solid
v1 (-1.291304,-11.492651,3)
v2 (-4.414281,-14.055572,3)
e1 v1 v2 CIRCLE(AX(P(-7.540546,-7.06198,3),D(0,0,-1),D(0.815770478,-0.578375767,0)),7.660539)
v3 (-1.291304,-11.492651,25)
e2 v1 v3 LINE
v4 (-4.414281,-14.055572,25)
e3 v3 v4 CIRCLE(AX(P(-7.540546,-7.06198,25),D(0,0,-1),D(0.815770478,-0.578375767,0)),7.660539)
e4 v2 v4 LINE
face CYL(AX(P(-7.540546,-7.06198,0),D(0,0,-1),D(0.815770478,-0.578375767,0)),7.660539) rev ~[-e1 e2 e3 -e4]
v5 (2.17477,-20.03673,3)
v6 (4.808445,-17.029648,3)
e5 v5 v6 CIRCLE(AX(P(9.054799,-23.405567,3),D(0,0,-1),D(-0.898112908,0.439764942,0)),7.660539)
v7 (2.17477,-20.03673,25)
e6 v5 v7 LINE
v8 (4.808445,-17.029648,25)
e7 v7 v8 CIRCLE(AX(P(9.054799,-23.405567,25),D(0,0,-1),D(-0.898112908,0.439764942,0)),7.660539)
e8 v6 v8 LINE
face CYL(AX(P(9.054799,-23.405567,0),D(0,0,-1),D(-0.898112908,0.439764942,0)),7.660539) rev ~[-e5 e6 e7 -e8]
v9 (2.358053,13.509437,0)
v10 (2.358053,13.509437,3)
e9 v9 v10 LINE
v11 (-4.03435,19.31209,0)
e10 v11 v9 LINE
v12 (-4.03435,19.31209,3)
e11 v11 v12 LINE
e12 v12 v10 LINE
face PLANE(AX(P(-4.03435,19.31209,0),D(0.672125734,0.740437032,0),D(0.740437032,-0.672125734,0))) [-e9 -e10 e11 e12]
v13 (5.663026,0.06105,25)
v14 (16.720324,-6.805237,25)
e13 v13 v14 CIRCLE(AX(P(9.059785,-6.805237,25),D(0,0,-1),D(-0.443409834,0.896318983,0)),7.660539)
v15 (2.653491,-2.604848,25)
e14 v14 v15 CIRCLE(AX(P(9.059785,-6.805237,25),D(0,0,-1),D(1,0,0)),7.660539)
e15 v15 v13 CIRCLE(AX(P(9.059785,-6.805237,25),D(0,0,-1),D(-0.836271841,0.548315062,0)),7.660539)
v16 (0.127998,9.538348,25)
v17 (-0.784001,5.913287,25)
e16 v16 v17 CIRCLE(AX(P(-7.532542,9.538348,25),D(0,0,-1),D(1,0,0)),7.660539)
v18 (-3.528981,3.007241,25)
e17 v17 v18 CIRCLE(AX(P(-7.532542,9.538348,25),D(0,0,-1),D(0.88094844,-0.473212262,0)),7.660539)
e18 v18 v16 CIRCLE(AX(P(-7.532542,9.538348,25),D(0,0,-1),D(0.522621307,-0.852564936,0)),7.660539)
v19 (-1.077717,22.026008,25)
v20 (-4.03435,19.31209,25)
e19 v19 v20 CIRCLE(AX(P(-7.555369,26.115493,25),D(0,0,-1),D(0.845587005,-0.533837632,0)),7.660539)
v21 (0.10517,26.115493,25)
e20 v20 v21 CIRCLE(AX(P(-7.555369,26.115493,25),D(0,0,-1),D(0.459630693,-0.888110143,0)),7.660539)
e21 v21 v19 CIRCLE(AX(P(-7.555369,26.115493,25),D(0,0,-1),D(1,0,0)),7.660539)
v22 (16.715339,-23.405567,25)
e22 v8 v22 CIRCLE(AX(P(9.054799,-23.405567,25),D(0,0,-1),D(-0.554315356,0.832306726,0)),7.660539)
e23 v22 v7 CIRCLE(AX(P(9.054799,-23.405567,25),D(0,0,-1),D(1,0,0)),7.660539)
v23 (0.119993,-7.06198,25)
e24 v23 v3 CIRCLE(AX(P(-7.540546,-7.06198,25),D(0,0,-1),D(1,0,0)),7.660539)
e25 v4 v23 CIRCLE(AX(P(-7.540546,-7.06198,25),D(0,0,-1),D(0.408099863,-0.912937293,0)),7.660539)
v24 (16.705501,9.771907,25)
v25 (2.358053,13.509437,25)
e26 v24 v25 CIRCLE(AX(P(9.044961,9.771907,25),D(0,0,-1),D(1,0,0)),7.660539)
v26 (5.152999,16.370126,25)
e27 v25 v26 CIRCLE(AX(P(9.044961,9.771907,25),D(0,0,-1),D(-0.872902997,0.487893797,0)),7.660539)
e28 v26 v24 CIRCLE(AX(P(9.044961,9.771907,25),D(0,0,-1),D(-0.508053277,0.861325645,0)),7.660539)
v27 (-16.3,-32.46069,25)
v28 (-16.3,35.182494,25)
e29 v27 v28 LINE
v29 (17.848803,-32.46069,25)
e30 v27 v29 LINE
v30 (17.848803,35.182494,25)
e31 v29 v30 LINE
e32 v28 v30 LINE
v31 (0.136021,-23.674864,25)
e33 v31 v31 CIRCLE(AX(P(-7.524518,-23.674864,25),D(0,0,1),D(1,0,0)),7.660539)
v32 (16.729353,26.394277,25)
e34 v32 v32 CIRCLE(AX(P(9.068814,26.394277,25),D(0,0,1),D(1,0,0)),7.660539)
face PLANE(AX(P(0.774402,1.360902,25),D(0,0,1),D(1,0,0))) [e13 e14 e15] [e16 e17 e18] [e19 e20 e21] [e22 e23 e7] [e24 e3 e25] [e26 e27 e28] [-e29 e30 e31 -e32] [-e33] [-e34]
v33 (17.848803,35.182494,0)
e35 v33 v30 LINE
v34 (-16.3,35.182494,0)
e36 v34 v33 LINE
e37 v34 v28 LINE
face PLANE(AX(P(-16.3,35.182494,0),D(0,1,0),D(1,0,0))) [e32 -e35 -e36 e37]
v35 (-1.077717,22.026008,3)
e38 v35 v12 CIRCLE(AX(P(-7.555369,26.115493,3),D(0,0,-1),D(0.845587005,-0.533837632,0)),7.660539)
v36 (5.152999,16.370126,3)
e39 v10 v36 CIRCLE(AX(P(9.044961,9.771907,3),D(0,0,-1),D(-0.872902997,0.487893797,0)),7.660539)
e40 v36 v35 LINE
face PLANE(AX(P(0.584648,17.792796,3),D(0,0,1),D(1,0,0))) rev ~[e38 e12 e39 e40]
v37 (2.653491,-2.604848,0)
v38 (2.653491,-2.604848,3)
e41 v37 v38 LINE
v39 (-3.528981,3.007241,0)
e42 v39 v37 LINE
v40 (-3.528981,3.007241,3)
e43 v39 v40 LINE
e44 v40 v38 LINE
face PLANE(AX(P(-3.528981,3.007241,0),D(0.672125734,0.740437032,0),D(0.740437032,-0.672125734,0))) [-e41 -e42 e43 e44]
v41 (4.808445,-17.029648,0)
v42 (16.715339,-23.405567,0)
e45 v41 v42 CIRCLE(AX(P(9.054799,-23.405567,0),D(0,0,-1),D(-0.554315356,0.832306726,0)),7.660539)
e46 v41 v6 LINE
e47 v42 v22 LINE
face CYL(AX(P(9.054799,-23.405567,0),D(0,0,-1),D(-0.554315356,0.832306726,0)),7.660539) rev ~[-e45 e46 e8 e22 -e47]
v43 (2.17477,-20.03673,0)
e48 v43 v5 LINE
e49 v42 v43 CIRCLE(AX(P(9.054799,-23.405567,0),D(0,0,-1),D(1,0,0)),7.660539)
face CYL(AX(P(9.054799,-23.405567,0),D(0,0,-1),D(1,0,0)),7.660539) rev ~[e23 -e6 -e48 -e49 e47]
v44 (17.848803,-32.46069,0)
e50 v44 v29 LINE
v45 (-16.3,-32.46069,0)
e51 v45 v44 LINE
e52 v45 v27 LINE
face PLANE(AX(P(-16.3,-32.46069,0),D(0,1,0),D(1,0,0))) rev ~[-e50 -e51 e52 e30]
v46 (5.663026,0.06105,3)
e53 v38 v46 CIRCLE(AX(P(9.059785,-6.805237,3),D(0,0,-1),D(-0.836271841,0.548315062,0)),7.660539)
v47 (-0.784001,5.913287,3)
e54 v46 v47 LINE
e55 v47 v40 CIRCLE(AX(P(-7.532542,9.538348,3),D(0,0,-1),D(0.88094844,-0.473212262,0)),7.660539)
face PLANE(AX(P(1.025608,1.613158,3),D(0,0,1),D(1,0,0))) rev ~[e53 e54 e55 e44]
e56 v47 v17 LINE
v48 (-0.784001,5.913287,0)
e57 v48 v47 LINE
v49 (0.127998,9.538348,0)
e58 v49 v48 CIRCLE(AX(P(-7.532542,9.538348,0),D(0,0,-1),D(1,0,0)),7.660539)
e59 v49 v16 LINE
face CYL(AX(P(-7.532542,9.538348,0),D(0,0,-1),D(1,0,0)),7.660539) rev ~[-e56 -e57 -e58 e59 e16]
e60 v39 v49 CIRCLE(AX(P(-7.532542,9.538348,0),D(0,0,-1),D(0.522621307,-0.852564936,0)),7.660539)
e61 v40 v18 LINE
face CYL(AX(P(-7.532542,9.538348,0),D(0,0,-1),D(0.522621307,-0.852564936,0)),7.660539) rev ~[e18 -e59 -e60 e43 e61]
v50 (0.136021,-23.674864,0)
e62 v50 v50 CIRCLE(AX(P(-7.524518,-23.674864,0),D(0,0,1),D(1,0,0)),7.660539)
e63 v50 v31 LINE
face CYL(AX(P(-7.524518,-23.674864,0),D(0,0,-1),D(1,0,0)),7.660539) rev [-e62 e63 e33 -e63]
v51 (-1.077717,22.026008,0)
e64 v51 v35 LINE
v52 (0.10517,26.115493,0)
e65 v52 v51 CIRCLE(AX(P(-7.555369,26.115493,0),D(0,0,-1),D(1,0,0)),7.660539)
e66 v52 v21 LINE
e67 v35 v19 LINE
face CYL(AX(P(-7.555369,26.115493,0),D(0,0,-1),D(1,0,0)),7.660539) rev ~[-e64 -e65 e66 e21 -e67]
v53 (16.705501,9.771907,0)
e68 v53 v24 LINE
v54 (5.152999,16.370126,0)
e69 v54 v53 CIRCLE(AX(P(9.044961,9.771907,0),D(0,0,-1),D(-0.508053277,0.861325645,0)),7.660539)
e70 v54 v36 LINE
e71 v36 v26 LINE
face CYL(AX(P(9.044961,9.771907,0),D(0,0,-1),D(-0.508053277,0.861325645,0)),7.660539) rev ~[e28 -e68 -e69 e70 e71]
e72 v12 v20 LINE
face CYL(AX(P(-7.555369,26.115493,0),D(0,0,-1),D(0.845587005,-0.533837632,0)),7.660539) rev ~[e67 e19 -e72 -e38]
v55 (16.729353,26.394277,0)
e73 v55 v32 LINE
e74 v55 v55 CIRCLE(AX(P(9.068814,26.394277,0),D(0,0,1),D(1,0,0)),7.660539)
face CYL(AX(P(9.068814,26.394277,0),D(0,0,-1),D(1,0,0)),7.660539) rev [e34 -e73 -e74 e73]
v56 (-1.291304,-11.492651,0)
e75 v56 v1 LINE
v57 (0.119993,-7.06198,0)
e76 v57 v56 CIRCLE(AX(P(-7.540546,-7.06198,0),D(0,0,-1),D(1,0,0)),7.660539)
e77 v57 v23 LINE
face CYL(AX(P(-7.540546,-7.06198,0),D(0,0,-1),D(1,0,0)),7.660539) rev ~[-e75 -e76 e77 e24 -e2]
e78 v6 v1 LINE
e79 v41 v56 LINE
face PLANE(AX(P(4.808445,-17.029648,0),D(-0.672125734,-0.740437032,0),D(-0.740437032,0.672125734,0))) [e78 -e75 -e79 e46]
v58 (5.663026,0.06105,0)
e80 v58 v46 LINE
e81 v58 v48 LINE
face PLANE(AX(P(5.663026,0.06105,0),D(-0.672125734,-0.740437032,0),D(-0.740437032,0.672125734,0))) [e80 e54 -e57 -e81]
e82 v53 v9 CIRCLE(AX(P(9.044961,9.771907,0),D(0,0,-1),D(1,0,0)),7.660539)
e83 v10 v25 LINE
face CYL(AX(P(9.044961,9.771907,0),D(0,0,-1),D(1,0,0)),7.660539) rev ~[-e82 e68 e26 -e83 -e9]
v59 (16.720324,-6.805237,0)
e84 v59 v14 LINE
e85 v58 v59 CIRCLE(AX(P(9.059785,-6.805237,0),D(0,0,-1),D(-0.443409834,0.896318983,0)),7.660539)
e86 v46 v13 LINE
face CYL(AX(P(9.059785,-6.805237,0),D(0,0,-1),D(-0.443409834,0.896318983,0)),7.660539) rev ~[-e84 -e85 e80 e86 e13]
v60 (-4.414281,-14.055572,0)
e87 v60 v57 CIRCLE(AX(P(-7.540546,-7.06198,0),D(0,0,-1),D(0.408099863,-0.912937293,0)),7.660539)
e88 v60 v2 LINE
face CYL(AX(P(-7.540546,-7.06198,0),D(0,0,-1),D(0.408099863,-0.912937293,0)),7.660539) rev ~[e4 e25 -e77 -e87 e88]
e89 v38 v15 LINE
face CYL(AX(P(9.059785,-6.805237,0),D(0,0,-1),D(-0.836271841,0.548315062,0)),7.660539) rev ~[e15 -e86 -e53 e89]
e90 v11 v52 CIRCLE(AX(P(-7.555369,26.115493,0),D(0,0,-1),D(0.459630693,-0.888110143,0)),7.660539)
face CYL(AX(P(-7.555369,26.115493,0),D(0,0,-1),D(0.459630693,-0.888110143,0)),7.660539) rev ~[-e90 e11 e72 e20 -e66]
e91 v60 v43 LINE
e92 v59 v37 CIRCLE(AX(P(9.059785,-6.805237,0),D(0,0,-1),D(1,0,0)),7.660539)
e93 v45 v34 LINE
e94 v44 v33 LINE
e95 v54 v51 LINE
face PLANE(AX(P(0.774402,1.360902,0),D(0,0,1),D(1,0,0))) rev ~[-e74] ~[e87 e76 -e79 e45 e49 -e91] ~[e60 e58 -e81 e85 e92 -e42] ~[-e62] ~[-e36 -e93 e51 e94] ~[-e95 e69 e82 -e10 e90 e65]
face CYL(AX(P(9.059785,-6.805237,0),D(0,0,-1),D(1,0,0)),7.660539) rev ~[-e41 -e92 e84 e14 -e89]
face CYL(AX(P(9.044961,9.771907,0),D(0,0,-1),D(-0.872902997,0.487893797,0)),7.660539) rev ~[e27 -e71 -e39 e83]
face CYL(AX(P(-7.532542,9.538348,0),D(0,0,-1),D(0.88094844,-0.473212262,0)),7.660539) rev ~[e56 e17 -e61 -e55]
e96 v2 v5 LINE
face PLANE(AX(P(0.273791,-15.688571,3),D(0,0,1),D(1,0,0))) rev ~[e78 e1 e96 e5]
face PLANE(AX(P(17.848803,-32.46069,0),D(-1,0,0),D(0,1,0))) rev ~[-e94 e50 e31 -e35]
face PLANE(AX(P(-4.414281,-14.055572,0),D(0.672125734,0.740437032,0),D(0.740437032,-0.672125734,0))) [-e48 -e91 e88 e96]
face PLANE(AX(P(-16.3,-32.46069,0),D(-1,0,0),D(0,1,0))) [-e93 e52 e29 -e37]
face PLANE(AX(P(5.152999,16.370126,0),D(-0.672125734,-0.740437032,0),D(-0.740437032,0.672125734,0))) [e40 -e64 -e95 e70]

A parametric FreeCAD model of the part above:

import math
import FreeCAD as App
import Part
import Sketcher

V = App.Vector


def add_polygon(sketch, points):
    """Adds a closed chain of lines whose ends are joined by coincident constraints."""
    first, n = sketch.GeometryCount, len(points)
    for a, b in zip(points, points[1:] + points[:1]):
        sketch.addGeometry(Part.LineSegment(App.Vector(*a, 0), App.Vector(*b, 0)), False)
    for i in range(n):
        sketch.addConstraint(Sketcher.Constraint("Coincident", first + i, 2, first + (i + 1) % n, 1))

doc = App.newDocument("Part")
params = doc.addObject("Spreadsheet::Sheet", "Params")
for row, (alias, value) in enumerate([
    ("pad1_length", "25 mm"),
    ("pocket1_length", "3 mm"),
], start=1):
    params.set(f"A{row}", alias)
    params.set(f"B{row}", "=" + value)
    params.setAlias(f"B{row}", alias)

body = doc.addObject("PartDesign::Body", "Body")

sketch1 = doc.addObject("Sketcher::SketchObject", "Sketch")
body.addObject(sketch1)
sketch1.AttachmentSupport = (doc.XY_Plane, [""])
sketch1.MapMode = "FlatFace"
add_polygon(sketch1, [(-16.3, 35.2), (-16.3, -32.5), (17.8, -32.5), (17.8, 35.2)])
sketch1.addGeometry(Part.Circle(V(-7.5, -23.7, 0), V(0, 0, 1), 7.7), False)
sketch1.addGeometry(Part.ArcOfCircle(Part.Circle(V(-7.5, -7.1, 0), V(0, 0, 1), 7.7), math.radians(0), math.radians(294)), False)
sketch1.addGeometry(Part.ArcOfCircle(Part.Circle(V(-7.5, -7.1, 0), V(0, 0, 1), 7.7), math.radians(-35), math.radians(0)), False)
sketch1.addGeometry(Part.ArcOfCircle(Part.Circle(V(-7.5, -7.1, 0), V(0, 0, 1), 7.7), math.radians(-66), math.radians(-35)), False)
sketch1.addGeometry(Part.ArcOfCircle(Part.Circle(V(9.1, -23.4, 0), V(0, 0, 1), 7.7), math.radians(0), math.radians(124)), False)
sketch1.addGeometry(Part.ArcOfCircle(Part.Circle(V(9.1, -23.4, 0), V(0, 0, 1), 7.7), math.radians(154), math.radians(360)), False)
sketch1.addGeometry(Part.ArcOfCircle(Part.Circle(V(9.1, -23.4, 0), V(0, 0, 1), 7.7), math.radians(124), math.radians(154)), False)
sketch1.addGeometry(Part.ArcOfCircle(Part.Circle(V(9, 9.8, 0), V(0, 0, 1), 7.7), math.radians(151), math.radians(360)), False)
sketch1.addGeometry(Part.ArcOfCircle(Part.Circle(V(9, 9.8, 0), V(0, 0, 1), 7.7), math.radians(121), math.radians(151)), False)
sketch1.addGeometry(Part.ArcOfCircle(Part.Circle(V(9, 9.8, 0), V(0, 0, 1), 7.7), math.radians(0), math.radians(121)), False)
sketch1.addGeometry(Part.ArcOfCircle(Part.Circle(V(-7.6, 26.1, 0), V(0, 0, 1), 7.7), math.radians(0), math.radians(297)), False)
sketch1.addGeometry(Part.ArcOfCircle(Part.Circle(V(-7.6, 26.1, 0), V(0, 0, 1), 7.7), math.radians(-32), math.radians(0)), False)
sketch1.addGeometry(Part.ArcOfCircle(Part.Circle(V(-7.6, 26.1, 0), V(0, 0, 1), 7.7), math.radians(-63), math.radians(-32)), False)
sketch1.addGeometry(Part.ArcOfCircle(Part.Circle(V(-7.5, 9.5, 0), V(0, 0, 1), 7.7), math.radians(0), math.radians(302)), False)
sketch1.addGeometry(Part.ArcOfCircle(Part.Circle(V(-7.5, 9.5, 0), V(0, 0, 1), 7.7), math.radians(-28), math.radians(0)), False)
sketch1.addGeometry(Part.ArcOfCircle(Part.Circle(V(-7.5, 9.5, 0), V(0, 0, 1), 7.7), math.radians(-58), math.radians(-28)), False)
sketch1.addGeometry(Part.ArcOfCircle(Part.Circle(V(9.1, -6.8, 0), V(0, 0, 1), 7.7), math.radians(0), math.radians(116)), False)
sketch1.addGeometry(Part.ArcOfCircle(Part.Circle(V(9.1, -6.8, 0), V(0, 0, 1), 7.7), math.radians(147), math.radians(360)), False)
sketch1.addGeometry(Part.ArcOfCircle(Part.Circle(V(9.1, -6.8, 0), V(0, 0, 1), 7.7), math.radians(116), math.radians(147)), False)
sketch1.addGeometry(Part.Circle(V(9.1, 26.4, 0), V(0, 0, 1), 7.7), False)
sketch1.addConstraint([
    Sketcher.Constraint("Tangent", 5, 1, 6, 2),
    Sketcher.Constraint("Tangent", 6, 1, 7, 2),
    Sketcher.Constraint("Tangent", 7, 1, 5, 2),
    Sketcher.Constraint("Tangent", 8, 1, 9, 2),
    Sketcher.Constraint("Tangent", 9, 1, 10, 2),
    Sketcher.Constraint("Tangent", 10, 1, 8, 2),
    Sketcher.Constraint("Tangent", 11, 1, 12, 2),
    Sketcher.Constraint("Tangent", 12, 1, 13, 2),
    Sketcher.Constraint("Tangent", 13, 1, 11, 2),
    Sketcher.Constraint("Tangent", 14, 1, 15, 2),
    Sketcher.Constraint("Tangent", 15, 1, 16, 2),
    Sketcher.Constraint("Tangent", 16, 1, 14, 2),
    Sketcher.Constraint("Tangent", 17, 1, 18, 2),
    Sketcher.Constraint("Tangent", 18, 1, 19, 2),
    Sketcher.Constraint("Tangent", 19, 1, 17, 2),
    Sketcher.Constraint("Tangent", 20, 1, 21, 2),
    Sketcher.Constraint("Tangent", 21, 1, 22, 2),
    Sketcher.Constraint("Tangent", 22, 1, 20, 2),
    Sketcher.Constraint("Vertical", 0),
    Sketcher.Constraint("Horizontal", 1),
    Sketcher.Constraint("Vertical", 2),
    Sketcher.Constraint("Horizontal", 3),
    Sketcher.Constraint("Equal", 4, 5),
    Sketcher.Constraint("Equal", 7, 8),
    Sketcher.Constraint("Equal", 10, 11),
    Sketcher.Constraint("Equal", 13, 14),
    Sketcher.Constraint("Equal", 16, 17),
    Sketcher.Constraint("Equal", 19, 20),
    Sketcher.Constraint("Equal", 22, 23),
    Sketcher.Constraint("Horizontal", 7, 3, 5, 1),
    Sketcher.Constraint("Horizontal", 10, 3, 8, 1),
    Sketcher.Constraint("Horizontal", 12, 3, 13, 1),
    Sketcher.Constraint("Horizontal", 16, 3, 14, 1),
    Sketcher.Constraint("Horizontal", 19, 3, 17, 1),
    Sketcher.Constraint("Horizontal", 22, 3, 20, 1),
    Sketcher.Constraint("DistanceX", 0, 2, -1, 1, 16.3),
    Sketcher.Constraint("Diameter", 4, 15.321079),
    Sketcher.Constraint("DistanceX", -1, 1, 12, 1, 5.152999),
    Sketcher.Constraint("DistanceX", 18, 1, -1, 1, 0.784001),
    Sketcher.Constraint("DistanceY", 14, 3, 2, 2, 9.067002),
    Sketcher.Constraint("DistanceX", 17, 1, 12, 1, 5.025001),
    Sketcher.Constraint("DistanceX", -1, 1, 8, 3, 9.054799),
    Sketcher.Constraint("DistanceX", -1, 1, 13, 1, 16.705501),
    Sketcher.Constraint("DistanceX", 1, 1, 1, 2, 34.148804),
    Sketcher.Constraint("DistanceY", 0, 2, 0, 1, 67.643184),
    Sketcher.Constraint("DistanceX", 4, 3, -1, 1, 7.524518),
    Sketcher.Constraint("DistanceY", 5, 3, -1, 1, 7.06198),
    Sketcher.Constraint("DistanceX", 14, 3, -1, 1, 7.555369),
    Sketcher.Constraint("DistanceY", -1, 1, 17, 3, 9.538348),
    Sketcher.Constraint("DistanceY", 0, 2, -1, 1, 32.46069),
    Sketcher.Constraint("DistanceY", 6, 1, -1, 1, 11.492651),
    Sketcher.Constraint("DistanceX", 7, 1, -1, 1, 4.414281),
    Sketcher.Constraint("DistanceX", -1, 1, 9, 1, 2.17477),
    Sketcher.Constraint("DistanceY", 9, 1, -1, 1, 20.03673),
    Sketcher.Constraint("DistanceY", 10, 1, -1, 1, 17.029648),
    Sketcher.Constraint("DistanceY", -1, 1, 15, 1, 22.026008),
    Sketcher.Constraint("DistanceX", 16, 1, -1, 1, 4.03435),
    Sketcher.Constraint("DistanceX", 19, 1, -1, 1, 3.528981),
    Sketcher.Constraint("DistanceX", -1, 1, 21, 1, 2.653491),
    Sketcher.Constraint("DistanceY", -1, 1, 22, 1, 0.06105),
    Sketcher.Constraint("DistanceY", 17, 3, 13, 3, 0.233559),
    Sketcher.Constraint("DistanceY", 8, 3, 20, 3, 16.60033),
    Sketcher.Constraint("DistanceY", 11, 3, 23, 3, 16.62237),
    Sketcher.Constraint("DistanceX", 20, 3, 1, 2, 8.789019),
    Sketcher.Constraint("DistanceX", 23, 3, 2, 2, 8.77999),
    Sketcher.Constraint("DistanceX", 5, 1, 22, 3, 8.939791),
    Sketcher.Constraint("DistanceY", 11, 3, 11, 1, 3.73753),
    Sketcher.Constraint("DistanceY", 4, 3, -1, 1, 23.674864),
])
pad1 = doc.addObject("PartDesign::Pad", "Pad")
body.addObject(pad1)
pad1.Profile = sketch1
pad1.setExpression("Length", "Params.pad1_length")

sketch2 = doc.addObject("Sketcher::SketchObject", "Sketch001")
body.addObject(sketch2)
sketch2.AttachmentSupport = (doc.XY_Plane, [""])
sketch2.MapMode = "FlatFace"
sketch2.addGeometry([
    Part.ArcOfCircle(Part.Circle(V(-7.6, 26.1, 0), V(0, 0, 1), 7.7), math.radians(-63), math.radians(-32)),
    Part.LineSegment(V(-4, 19.3, 0), V(2.4, 13.5, 0)),
    Part.ArcOfCircle(Part.Circle(V(9, 9.8, 0), V(0, 0, 1), 7.7), math.radians(121), math.radians(151)),
    Part.LineSegment(V(5.2, 16.4, 0), V(-1.1, 22, 0)),
    Part.ArcOfCircle(Part.Circle(V(-7.5, -7.1, 0), V(0, 0, 1), 7.7), math.radians(-66), math.radians(-35)),
    Part.LineSegment(V(-4.4, -14.1, 0), V(2.2, -20, 0)),
    Part.ArcOfCircle(Part.Circle(V(9.1, -23.4, 0), V(0, 0, 1), 7.7), math.radians(124), math.radians(154)),
    Part.LineSegment(V(4.8, -17, 0), V(-1.3, -11.5, 0)),
    Part.ArcOfCircle(Part.Circle(V(-7.5, 9.5, 0), V(0, 0, 1), 7.7), math.radians(-58), math.radians(-28)),
    Part.LineSegment(V(-3.5, 3, 0), V(2.7, -2.6, 0)),
    Part.ArcOfCircle(Part.Circle(V(9.1, -6.8, 0), V(0, 0, 1), 7.7), math.radians(116), math.radians(147)),
    Part.LineSegment(V(5.7, 0.1, 0), V(-0.8, 5.9, 0)),
], False)
sketch2.addConstraint([
    Sketcher.Constraint("Coincident", 0, 1, 1, 1),
    Sketcher.Constraint("Coincident", 1, 2, 2, 2),
    Sketcher.Constraint("Coincident", 2, 1, 3, 1),
    Sketcher.Constraint("Coincident", 3, 2, 0, 2),
    Sketcher.Constraint("Coincident", 4, 1, 5, 1),
    Sketcher.Constraint("Coincident", 5, 2, 6, 2),
    Sketcher.Constraint("Coincident", 6, 1, 7, 1),
    Sketcher.Constraint("Coincident", 7, 2, 4, 2),
    Sketcher.Constraint("Coincident", 8, 1, 9, 1),
    Sketcher.Constraint("Coincident", 9, 2, 10, 2),
    Sketcher.Constraint("Coincident", 10, 1, 11, 1),
    Sketcher.Constraint("Coincident", 11, 2, 8, 2),
    Sketcher.Constraint("Equal", 0, 2),
    Sketcher.Constraint("Equal", 2, 4),
    Sketcher.Constraint("Equal", 4, 6),
    Sketcher.Constraint("Equal", 6, 8),
    Sketcher.Constraint("Equal", 8, 10),
    Sketcher.Constraint("Parallel", 1, 3),
    Sketcher.Constraint("Parallel", 3, 5),
    Sketcher.Constraint("Parallel", 5, 7),
    Sketcher.Constraint("Parallel", 7, 9),
    Sketcher.Constraint("Parallel", 9, 11),
    Sketcher.Constraint("Radius", 0, 7.660539),
    Sketcher.Constraint("DistanceX", -1, 1, 2, 1, 5.152999),
    Sketcher.Constraint("DistanceX", 11, 2, -1, 1, 0.784001),
    Sketcher.Constraint("DistanceX", -1, 1, 6, 3, 9.054799),
    Sketcher.Constraint("DistanceY", 7, 2, 10, 1, 11.553701),
    Sketcher.Constraint("Distance", 7, 8.238038),
    Sketcher.Constraint("Distance", 9, 8.34976),
    Sketcher.Constraint("DistanceX", 0, 3, -1, 1, 7.555369),
    Sketcher.Constraint("DistanceX", -1, 1, 2, 3, 9.044961),
    Sketcher.Constraint("DistanceY", 4, 3, -1, 1, 7.06198),
    Sketcher.Constraint("DistanceX", 8, 3, -1, 1, 7.532542),
    Sketcher.Constraint("DistanceY", -1, 1, 8, 3, 9.538348),
    Sketcher.Constraint("DistanceX", 0, 1, -1, 1, 4.03435),
    Sketcher.Constraint("DistanceY", -1, 1, 0, 1, 19.31209),
    Sketcher.Constraint("DistanceY", -1, 1, 3, 2, 22.026008),
    Sketcher.Constraint("DistanceX", 4, 1, -1, 1, 4.414281),
    Sketcher.Constraint("DistanceX", -1, 1, 5, 2, 2.17477),
    Sketcher.Constraint("DistanceY", 5, 2, -1, 1, 20.03673),
    Sketcher.Constraint("DistanceY", 6, 1, -1, 1, 17.029648),
    Sketcher.Constraint("DistanceX", 8, 1, -1, 1, 3.528981),
])
pocket1 = doc.addObject("PartDesign::Pocket", "Pocket")
body.addObject(pocket1)
pocket1.Profile = sketch2
pocket1.setExpression("Length", "Params.pocket1_length")
pocket1.Reversed = True

doc.recompute()
